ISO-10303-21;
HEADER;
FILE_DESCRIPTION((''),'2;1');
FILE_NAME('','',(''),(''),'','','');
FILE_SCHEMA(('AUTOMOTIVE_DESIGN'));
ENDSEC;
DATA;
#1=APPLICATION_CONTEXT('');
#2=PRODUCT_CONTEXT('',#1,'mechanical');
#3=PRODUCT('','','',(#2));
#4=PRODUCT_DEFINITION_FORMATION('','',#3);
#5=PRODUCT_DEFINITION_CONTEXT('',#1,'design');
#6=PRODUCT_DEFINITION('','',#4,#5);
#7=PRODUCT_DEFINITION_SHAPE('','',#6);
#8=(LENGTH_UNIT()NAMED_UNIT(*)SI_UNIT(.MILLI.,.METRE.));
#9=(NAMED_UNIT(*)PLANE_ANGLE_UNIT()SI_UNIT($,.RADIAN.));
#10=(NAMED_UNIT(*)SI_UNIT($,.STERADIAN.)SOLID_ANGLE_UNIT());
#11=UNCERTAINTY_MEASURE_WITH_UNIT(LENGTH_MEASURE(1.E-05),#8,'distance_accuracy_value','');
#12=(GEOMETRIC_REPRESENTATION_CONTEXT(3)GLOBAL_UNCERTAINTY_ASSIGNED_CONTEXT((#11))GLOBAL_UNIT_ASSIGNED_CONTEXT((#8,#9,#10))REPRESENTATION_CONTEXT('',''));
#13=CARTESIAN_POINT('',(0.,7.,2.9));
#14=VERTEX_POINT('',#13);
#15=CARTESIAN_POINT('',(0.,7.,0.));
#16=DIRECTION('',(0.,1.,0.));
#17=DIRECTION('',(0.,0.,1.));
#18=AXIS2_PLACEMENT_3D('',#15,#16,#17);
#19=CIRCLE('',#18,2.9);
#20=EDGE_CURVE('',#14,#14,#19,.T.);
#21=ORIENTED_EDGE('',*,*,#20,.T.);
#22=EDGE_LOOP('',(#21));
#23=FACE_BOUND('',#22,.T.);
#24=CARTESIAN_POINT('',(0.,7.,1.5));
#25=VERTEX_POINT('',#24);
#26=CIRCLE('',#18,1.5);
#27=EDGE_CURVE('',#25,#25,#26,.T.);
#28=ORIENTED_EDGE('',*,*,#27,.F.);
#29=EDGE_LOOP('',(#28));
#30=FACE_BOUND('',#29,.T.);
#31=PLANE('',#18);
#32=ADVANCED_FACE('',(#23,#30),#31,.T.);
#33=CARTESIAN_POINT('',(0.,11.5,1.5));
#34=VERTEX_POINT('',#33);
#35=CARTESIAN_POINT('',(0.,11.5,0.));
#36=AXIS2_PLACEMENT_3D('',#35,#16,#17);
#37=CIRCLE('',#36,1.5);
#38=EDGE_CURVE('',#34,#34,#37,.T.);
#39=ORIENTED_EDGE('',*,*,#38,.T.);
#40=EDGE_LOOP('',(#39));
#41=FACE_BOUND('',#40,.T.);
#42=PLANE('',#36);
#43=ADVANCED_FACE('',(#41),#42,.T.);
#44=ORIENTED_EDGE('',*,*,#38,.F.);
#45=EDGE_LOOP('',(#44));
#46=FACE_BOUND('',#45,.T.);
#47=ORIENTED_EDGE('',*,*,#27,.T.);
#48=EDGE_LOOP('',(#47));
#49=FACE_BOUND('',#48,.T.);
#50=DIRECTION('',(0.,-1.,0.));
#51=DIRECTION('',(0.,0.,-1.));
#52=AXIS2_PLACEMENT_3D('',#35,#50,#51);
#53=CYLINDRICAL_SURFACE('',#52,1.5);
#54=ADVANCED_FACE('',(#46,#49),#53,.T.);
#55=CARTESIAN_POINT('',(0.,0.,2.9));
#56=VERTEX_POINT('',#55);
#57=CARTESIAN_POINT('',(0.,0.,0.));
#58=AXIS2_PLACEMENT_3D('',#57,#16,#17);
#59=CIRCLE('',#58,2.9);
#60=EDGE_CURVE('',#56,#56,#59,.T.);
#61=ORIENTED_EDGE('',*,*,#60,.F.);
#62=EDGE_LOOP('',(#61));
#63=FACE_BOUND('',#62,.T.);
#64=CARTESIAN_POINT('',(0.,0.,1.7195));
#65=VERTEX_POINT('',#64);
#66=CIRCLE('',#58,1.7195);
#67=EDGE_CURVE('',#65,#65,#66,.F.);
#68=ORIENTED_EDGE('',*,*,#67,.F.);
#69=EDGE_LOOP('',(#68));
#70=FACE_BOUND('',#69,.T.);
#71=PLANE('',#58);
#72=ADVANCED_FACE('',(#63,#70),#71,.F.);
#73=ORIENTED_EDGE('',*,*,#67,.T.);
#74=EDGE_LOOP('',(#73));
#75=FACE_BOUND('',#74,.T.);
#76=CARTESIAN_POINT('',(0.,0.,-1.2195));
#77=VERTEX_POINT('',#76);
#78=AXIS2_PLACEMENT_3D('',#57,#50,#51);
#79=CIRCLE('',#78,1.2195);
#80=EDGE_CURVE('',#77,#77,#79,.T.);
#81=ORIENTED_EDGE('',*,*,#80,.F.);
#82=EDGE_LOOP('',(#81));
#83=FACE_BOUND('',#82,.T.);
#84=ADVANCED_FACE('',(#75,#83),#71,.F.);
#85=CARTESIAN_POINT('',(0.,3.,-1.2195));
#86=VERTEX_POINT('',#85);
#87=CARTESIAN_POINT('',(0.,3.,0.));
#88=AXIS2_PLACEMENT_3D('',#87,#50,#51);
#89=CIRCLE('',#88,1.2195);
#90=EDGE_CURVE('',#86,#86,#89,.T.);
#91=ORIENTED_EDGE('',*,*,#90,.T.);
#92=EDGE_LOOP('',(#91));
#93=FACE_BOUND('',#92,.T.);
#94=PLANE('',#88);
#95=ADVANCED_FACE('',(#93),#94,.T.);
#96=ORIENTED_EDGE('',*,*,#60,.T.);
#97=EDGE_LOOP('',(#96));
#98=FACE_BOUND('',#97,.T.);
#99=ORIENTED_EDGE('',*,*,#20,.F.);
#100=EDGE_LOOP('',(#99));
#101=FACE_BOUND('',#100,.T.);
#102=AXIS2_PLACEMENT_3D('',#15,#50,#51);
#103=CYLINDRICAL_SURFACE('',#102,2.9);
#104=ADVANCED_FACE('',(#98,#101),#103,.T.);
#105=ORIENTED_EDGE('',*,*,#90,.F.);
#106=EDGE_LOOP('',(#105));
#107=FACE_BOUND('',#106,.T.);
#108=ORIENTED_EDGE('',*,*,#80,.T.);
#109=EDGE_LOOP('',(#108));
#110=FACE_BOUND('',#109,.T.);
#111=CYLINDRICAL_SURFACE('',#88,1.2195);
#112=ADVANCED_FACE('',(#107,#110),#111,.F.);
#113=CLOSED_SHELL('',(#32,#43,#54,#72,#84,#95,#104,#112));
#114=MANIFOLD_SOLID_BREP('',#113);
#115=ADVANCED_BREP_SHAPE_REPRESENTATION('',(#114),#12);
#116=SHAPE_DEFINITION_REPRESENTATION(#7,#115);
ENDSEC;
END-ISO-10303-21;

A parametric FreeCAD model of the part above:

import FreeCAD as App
import Part
import Sketcher

V = App.Vector
Q = App.Units.Quantity

doc = App.newDocument("Part")
params = doc.addObject("Spreadsheet::Sheet", "Params")
for row, (alias, value) in enumerate([
    ("sketch1_diameter", "5.8 mm"),
    ("pad1_length", "7 mm"),
    ("sketch2_diameter", "3 mm"),
    ("pad2_length", "4.5 mm"),
    ("pocket1_length", "3 mm"),
], start=1):
    params.set(f"A{row}", alias)
    params.set(f"B{row}", "=" + value)
    params.setAlias(f"B{row}", alias)

body = doc.addObject("PartDesign::Body", "Body")

sketch1 = body.newObject("Sketcher::SketchObject", "Sketch")
sketch1.AttachmentSupport = (doc.getObject("XZ_Plane"), [""])
sketch1.MapMode = "FlatFace"
sketch1.addGeometry(Part.Circle(V(0, 0, 0), V(0, 0, 1), 2.9), False)
sketch1.addConstraint(Sketcher.Constraint("Coincident", 0, 3, -1, 1))
sketch1.addConstraint(Sketcher.Constraint("Diameter", 0, Q("5.8 mm")))
sketch1.setExpression("Constraints[1]", "Params.sketch1_diameter")
pad1 = body.newObject("PartDesign::Pad", "Pad")
pad1.Profile = sketch1
pad1.setExpression("Length", "Params.pad1_length")
pad1.Reversed = True

sketch2 = body.newObject("Sketcher::SketchObject", "Sketch001")
sketch2.AttachmentSupport = (doc.getObject("XZ_Plane"), [""])
sketch2.MapMode = "FlatFace"
sketch2.AttachmentOffset = App.Placement(V(0, 0, -7), App.Rotation())
sketch2.addGeometry(Part.Circle(V(0, 0, 0), V(0, 0, 1), 1.5), False)
sketch2.addConstraint(Sketcher.Constraint("Coincident", 0, 3, -1, 1))
sketch2.addConstraint(Sketcher.Constraint("Diameter", 0, Q("3 mm")))
sketch2.setExpression("Constraints[1]", "Params.sketch2_diameter")
pad2 = body.newObject("PartDesign::Pad", "Pad001")
pad2.Profile = sketch2
pad2.setExpression("Length", "Params.pad2_length")
pad2.Reversed = True

sketch3 = body.newObject("Sketcher::SketchObject", "Sketch002")
sketch3.AttachmentSupport = (doc.getObject("XZ_Plane"), [""])
sketch3.MapMode = "FlatFace"
sketch3.addGeometry(Part.Circle(V(0, 0, 0), V(0, 0, 1), 1.2), False)
sketch3.addConstraint(Sketcher.Constraint("Coincident", 0, 3, -1, 1))
sketch3.addConstraint(Sketcher.Constraint("Diameter", 0, Q("2.439 mm")))
pocket1 = body.newObject("PartDesign::Pocket", "Pocket")
pocket1.Profile = sketch3
pocket1.setExpression("Length", "Params.pocket1_length")

doc.recompute()
